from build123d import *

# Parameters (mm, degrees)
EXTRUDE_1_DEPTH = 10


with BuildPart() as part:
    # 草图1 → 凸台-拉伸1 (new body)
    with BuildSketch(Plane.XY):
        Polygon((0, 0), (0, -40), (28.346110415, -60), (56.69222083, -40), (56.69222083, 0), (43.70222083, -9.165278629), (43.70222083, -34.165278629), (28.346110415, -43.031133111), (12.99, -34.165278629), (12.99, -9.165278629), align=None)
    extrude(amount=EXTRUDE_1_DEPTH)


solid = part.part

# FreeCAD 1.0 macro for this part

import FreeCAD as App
import Part
import Sketcher
from FreeCAD import Vector
Q = App.Units.Quantity


def add_polygon(sketch, points):
    """Adds a closed chain of lines whose ends are joined by coincident constraints."""
    first, n = sketch.GeometryCount, len(points)
    for a, b in zip(points, points[1:] + points[:1]):
        sketch.addGeometry(Part.LineSegment(App.Vector(*a, 0), App.Vector(*b, 0)), False)
    for i in range(n):
        sketch.addConstraint(Sketcher.Constraint("Coincident", first + i, 2, first + (i + 1) % n, 1))

doc = App.newDocument("Part")
body = doc.addObject("PartDesign::Body", "Body")

sketch1 = body.newObject("Sketcher::SketchObject", "Sketch")
sketch1.AttachmentSupport = (doc.getObject("XY_Plane"), [""])
sketch1.MapMode = "FlatFace"
add_polygon(sketch1, [(0, 0), (0, -40), (28.34611, -60), (56.692221, -40), (56.692221, 0), (43.702221, -9.165279), (43.702221, -34.165279), (28.34611, -43.031133), (12.99, -34.165279), (12.99, -9.165279)])
sketch1.addConstraint([
    Sketcher.Constraint("Vertical", 0),
    Sketcher.Constraint("Vertical", 3),
    Sketcher.Constraint("Vertical", 5),
    Sketcher.Constraint("Vertical", 8),
    Sketcher.Constraint("Coincident", 9, 2, -1, 1),
    Sketcher.Constraint("PointOnObject", 3, 2, -1),
    Sketcher.Constraint("Parallel", 2, 4),
    Sketcher.Constraint("Parallel", 1, 9),
    Sketcher.Constraint("Horizontal", 0, 2, 2, 2),
    Sketcher.Constraint("Horizontal", 5, 2, 7, 2),
    Sketcher.Constraint("Horizontal", 4, 2, 8, 2),
    Sketcher.Constraint("Vertical", 1, 2, 6, 2),
    Sketcher.Constraint("Equal", 1, 2),
    Sketcher.Constraint("DistanceY", 0, 2, 0, 1, 40.0),
    Sketcher.Constraint("DistanceY", 5, 2, 5, 1, 25.0),
    Sketcher.Constraint("Angle", 6, Q("-150 deg")),
    Sketcher.Constraint("DistanceY", 1, 2, -1, 1, 60.0),
    Sketcher.Constraint("DistanceX", -1, 1, 7, 2, 12.99),
    Sketcher.Constraint("Distance", 6, 17.731709),
])
pad1 = body.newObject("PartDesign::Pad", "Pad")
pad1.Profile = sketch1
pad1.Length = 10

doc.recompute()
